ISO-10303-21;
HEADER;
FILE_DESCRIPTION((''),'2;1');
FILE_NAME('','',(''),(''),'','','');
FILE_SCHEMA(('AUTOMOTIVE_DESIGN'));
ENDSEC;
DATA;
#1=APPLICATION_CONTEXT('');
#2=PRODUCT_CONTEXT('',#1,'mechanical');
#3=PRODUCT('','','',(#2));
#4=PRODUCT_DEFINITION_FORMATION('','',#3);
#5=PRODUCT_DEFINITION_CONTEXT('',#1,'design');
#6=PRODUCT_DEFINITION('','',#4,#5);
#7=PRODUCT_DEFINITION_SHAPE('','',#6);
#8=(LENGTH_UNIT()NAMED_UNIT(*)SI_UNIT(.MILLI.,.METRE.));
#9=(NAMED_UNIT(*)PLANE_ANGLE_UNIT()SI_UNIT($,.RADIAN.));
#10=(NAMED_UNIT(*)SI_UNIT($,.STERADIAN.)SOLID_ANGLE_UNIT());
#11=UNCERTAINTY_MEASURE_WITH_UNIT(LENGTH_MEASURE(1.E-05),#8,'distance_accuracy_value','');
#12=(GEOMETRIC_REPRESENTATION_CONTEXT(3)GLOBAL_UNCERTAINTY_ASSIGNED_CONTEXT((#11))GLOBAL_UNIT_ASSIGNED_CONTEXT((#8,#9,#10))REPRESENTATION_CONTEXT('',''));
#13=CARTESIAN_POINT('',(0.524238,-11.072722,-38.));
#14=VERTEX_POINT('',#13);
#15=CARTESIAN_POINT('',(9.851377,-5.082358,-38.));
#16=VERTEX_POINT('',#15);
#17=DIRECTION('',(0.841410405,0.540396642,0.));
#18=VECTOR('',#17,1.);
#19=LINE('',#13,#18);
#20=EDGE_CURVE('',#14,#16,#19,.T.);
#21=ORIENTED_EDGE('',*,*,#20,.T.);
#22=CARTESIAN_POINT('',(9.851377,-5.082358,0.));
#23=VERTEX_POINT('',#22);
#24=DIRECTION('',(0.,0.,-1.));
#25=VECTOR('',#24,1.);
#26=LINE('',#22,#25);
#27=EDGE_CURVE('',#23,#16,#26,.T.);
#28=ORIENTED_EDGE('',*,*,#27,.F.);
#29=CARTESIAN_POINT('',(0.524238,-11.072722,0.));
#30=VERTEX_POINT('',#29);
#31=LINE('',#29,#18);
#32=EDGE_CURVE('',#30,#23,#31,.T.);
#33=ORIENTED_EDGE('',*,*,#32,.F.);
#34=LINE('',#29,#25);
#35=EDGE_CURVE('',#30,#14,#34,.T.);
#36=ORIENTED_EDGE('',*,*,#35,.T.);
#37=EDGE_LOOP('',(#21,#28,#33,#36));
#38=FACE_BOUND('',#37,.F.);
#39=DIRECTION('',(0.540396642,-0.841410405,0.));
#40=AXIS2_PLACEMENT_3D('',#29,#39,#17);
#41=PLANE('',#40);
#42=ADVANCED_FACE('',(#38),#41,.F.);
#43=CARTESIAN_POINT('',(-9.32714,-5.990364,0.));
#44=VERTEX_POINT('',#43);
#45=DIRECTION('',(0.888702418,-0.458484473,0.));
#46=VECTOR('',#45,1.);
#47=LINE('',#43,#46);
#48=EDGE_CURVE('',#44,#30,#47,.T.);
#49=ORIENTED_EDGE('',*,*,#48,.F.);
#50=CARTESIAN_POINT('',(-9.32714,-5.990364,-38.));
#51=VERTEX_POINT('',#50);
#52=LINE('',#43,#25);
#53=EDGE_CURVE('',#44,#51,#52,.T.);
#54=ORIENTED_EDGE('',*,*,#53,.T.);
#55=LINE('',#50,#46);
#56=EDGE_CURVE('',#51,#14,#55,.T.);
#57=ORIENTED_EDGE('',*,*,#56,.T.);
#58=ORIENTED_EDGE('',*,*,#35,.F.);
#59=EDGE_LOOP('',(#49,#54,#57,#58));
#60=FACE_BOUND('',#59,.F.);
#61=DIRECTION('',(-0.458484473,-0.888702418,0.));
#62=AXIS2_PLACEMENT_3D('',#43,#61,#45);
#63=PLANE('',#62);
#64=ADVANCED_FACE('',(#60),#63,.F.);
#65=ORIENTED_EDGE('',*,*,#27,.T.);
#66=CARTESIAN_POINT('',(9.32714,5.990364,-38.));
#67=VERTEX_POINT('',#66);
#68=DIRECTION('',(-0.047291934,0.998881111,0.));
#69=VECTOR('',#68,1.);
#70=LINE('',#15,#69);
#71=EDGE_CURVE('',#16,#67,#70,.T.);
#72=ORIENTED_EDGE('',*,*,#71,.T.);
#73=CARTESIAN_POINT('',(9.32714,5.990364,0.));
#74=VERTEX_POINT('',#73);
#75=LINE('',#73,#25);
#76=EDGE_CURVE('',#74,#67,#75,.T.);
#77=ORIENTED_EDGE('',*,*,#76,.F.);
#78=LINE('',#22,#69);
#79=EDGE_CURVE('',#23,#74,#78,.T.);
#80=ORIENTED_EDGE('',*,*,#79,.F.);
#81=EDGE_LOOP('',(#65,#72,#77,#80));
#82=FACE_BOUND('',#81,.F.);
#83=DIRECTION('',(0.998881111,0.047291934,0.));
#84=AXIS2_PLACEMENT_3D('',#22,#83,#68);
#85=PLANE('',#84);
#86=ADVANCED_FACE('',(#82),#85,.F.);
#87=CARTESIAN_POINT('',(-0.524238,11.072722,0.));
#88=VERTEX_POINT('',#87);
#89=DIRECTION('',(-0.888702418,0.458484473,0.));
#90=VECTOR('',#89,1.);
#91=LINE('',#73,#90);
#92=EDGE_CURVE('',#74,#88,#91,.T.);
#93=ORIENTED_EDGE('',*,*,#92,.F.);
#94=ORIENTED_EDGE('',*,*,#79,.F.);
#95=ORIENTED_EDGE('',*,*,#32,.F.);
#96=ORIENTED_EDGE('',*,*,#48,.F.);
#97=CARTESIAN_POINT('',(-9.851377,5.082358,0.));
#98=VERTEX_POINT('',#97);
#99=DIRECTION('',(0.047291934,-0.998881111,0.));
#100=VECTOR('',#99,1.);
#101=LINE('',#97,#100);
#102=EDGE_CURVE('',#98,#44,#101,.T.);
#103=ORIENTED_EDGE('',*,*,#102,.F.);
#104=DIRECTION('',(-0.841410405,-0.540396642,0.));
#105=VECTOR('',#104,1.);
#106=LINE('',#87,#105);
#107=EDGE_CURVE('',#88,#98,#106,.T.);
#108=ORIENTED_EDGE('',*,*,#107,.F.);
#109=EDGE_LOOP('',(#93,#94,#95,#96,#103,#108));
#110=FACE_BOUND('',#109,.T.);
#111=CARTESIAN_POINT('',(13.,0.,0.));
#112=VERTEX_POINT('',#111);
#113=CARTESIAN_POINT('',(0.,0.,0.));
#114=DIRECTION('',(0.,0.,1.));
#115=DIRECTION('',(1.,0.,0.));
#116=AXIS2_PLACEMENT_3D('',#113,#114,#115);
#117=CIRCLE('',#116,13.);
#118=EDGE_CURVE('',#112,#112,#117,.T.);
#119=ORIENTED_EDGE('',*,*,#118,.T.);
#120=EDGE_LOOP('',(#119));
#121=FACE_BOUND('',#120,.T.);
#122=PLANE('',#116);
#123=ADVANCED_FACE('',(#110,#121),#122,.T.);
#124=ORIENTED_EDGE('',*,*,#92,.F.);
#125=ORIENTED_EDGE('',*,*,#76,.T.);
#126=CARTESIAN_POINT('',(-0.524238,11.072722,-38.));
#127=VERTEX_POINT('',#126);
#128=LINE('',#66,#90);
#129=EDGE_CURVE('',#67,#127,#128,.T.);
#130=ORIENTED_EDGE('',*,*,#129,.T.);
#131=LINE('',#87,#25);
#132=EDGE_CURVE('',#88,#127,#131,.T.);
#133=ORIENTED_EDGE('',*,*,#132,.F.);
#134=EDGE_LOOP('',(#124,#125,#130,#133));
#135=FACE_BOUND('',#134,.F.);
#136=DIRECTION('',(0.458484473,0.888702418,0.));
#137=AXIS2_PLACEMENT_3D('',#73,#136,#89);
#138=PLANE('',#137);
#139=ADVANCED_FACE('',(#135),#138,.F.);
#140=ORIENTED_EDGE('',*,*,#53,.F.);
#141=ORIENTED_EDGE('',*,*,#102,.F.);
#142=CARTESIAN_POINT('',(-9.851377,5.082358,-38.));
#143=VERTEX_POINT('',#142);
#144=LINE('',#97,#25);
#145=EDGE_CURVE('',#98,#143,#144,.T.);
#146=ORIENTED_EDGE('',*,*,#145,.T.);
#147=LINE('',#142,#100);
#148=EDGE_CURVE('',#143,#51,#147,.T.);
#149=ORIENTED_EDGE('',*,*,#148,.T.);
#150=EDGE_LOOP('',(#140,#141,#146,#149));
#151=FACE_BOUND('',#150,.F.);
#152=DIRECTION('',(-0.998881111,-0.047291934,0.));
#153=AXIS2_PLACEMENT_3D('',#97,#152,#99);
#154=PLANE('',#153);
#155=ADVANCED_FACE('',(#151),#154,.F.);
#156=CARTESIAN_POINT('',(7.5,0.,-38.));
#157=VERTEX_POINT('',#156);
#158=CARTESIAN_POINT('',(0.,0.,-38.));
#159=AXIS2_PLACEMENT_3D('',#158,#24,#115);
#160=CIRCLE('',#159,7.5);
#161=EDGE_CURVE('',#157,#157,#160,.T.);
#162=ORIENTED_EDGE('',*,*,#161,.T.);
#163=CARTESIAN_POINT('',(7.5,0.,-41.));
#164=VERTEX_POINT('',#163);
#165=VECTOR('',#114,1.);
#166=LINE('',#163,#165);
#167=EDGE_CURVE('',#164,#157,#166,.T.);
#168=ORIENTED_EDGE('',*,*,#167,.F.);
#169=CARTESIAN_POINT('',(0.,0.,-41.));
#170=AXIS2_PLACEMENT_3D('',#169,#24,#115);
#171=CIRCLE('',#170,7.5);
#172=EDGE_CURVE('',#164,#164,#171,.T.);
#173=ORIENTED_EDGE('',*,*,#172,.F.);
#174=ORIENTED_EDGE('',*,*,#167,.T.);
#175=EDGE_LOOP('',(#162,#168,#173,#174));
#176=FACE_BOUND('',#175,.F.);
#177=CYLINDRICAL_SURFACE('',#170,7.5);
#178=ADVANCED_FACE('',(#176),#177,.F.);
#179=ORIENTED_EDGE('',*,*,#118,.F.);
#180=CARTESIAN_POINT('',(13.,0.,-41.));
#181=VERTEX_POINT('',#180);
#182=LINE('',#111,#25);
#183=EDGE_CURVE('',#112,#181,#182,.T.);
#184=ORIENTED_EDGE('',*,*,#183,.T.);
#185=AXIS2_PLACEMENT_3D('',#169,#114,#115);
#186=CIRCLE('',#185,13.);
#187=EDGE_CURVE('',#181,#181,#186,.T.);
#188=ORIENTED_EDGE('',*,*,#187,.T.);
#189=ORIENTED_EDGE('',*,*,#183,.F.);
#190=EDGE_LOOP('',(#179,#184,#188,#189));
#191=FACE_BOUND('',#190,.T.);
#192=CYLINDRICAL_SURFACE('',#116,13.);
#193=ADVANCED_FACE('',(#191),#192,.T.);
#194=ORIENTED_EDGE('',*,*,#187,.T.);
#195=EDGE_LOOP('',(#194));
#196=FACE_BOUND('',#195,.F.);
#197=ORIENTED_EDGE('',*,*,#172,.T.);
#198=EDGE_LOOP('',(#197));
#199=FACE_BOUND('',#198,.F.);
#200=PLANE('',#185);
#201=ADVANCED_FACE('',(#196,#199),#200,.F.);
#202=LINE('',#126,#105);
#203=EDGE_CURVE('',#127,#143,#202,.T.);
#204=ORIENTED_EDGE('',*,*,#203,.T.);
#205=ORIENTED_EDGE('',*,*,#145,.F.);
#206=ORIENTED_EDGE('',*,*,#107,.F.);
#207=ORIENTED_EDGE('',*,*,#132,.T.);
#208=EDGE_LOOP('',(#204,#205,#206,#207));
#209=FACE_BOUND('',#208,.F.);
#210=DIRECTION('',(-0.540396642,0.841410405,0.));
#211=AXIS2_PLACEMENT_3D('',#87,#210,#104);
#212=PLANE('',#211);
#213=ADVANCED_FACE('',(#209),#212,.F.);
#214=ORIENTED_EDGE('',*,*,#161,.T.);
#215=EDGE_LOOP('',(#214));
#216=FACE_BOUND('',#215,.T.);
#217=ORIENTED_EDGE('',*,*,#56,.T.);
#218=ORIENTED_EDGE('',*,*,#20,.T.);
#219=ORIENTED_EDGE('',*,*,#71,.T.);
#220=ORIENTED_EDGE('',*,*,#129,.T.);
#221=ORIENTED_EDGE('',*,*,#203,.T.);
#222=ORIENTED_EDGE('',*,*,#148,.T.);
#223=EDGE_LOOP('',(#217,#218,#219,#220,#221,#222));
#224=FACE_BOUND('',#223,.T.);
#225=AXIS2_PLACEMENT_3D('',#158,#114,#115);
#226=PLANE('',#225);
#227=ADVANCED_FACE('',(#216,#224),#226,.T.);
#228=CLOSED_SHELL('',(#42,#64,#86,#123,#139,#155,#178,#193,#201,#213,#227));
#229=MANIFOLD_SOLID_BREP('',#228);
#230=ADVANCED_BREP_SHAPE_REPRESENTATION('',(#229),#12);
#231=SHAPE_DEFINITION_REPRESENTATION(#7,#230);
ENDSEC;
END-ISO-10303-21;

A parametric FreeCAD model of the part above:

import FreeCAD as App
import Part
import Sketcher
from FreeCAD import Vector
Q = App.Units.Quantity

doc = App.newDocument("Part")
body = doc.addObject("PartDesign::Body", "Body")

# Sketch on XY plane
sketch1 = body.newObject("Sketcher::SketchObject", "Sketch")
sketch1.AttachmentSupport = (doc.getObject("XY_Plane"), [""])
sketch1.MapMode = "FlatFace"
sketch1.addGeometry(Part.Circle(Vector(0, 0, 0), Vector(0, 0, 1), 13), False)
sketch1.addConstraint([
    Sketcher.Constraint("Coincident", 0, 3, -1, 1),
    Sketcher.Constraint("Diameter", 0, Q("26 mm")),
])
pad1 = body.newObject("PartDesign::Pad", "Pad")
pad1.Profile = sketch1
pad1.Length = 41
pad1.Reversed = True

# Sketch on XY plane
sketch2 = body.newObject("Sketcher::SketchObject", "Sketch001")
sketch2.AttachmentSupport = (doc.getObject("XY_Plane"), [""])
sketch2.MapMode = "FlatFace"
sketch2.addGeometry([
    Part.LineSegment(Vector(-1, 11, 0), Vector(-10, 5, 0)),  # 0
    Part.LineSegment(Vector(-10, 5, 0), Vector(-9, -6, 0)),  # 1
    Part.LineSegment(Vector(-9, -6, 0), Vector(1, -11, 0)),  # 2
    Part.LineSegment(Vector(1, -11, 0), Vector(10, -5, 0)),  # 3
    Part.LineSegment(Vector(10, -5, 0), Vector(9, 6, 0)),  # 4
    Part.LineSegment(Vector(9, 6, 0), Vector(-1, 11, 0)),  # 5
], False)
sketch2.addConstraint([
    Sketcher.Constraint("Coincident", 0, 2, 1, 1),
    Sketcher.Constraint("Coincident", 1, 2, 2, 1),
    Sketcher.Constraint("Coincident", 2, 2, 3, 1),
    Sketcher.Constraint("Coincident", 3, 2, 4, 1),
    Sketcher.Constraint("Coincident", 4, 2, 5, 1),
    Sketcher.Constraint("Coincident", 5, 2, 0, 1),
    Sketcher.Constraint("Symmetric", 0, 2, 3, 2, -1, 1),
    Sketcher.Constraint("Symmetric", 1, 2, 4, 2, -1, 1),
    Sketcher.Constraint("Symmetric", 2, 2, 5, 2, -1, 1),
    Sketcher.Constraint("Equal", 0, 1),
    Sketcher.Constraint("Equal", 1, 2),
    Sketcher.Constraint("DistanceX", 1, 2, -1, 1, Q("9.32714 mm")),
    Sketcher.Constraint("DistanceY", 1, 2, 0, 2, Q("11.072722 mm")),
    Sketcher.Constraint("DistanceY", 2, 2, 1, 2, Q("5.082358 mm")),
    Sketcher.Constraint("DistanceX", 2, 2, 3, 2, Q("9.327139 mm")),
])
pocket1 = body.newObject("PartDesign::Pocket", "Pocket")
pocket1.Profile = sketch2
pocket1.Length = 38

# Sketch on XY plane
sketch3 = body.newObject("Sketcher::SketchObject", "Sketch002")
sketch3.AttachmentSupport = (doc.getObject("XY_Plane"), [""])
sketch3.MapMode = "FlatFace"
sketch3.AttachmentOffset = App.Placement(Vector(0, 0, -41), App.Rotation())
sketch3.addGeometry(Part.Circle(Vector(0, 0, 0), Vector(0, 0, 1), 8), False)
sketch3.addConstraint([
    Sketcher.Constraint("Coincident", 0, 3, -1, 1),
    Sketcher.Constraint("Diameter", 0, Q("15 mm")),
])
pocket2 = body.newObject("PartDesign::Pocket", "Pocket001")
pocket2.Profile = sketch3
pocket2.Length = 25
pocket2.Reversed = True

doc.recompute()
